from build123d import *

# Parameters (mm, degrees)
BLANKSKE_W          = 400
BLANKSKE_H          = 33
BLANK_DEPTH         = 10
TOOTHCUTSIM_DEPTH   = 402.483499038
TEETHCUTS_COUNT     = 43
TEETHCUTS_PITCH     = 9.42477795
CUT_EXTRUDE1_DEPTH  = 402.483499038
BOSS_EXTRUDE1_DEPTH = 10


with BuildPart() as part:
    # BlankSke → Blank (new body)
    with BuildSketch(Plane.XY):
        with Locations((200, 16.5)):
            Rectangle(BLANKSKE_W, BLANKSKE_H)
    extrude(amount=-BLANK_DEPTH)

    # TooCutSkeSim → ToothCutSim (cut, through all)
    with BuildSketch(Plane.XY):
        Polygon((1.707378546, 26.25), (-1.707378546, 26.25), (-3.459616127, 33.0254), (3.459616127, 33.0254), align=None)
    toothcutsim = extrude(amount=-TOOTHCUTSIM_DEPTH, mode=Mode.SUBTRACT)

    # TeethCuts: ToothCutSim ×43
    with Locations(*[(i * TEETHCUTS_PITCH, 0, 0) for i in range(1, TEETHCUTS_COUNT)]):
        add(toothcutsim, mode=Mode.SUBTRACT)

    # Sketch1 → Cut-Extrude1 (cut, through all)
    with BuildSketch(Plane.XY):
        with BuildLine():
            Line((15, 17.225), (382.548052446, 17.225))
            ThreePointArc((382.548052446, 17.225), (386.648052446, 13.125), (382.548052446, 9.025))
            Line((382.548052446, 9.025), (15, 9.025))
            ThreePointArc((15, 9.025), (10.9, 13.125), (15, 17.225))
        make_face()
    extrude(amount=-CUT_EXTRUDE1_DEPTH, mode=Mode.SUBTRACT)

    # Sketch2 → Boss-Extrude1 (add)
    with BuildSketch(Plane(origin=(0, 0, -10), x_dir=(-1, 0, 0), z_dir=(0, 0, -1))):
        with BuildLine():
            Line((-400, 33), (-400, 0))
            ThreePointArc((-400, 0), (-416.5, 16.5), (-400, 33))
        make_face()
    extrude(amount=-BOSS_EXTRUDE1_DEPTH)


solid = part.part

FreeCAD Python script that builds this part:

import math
import FreeCAD as App
import Part
import Sketcher
Q = App.Units.Quantity

doc = App.newDocument("Part")
body = doc.addObject("PartDesign::Body", "Body")

sketch1 = doc.addObject("Sketcher::SketchObject", "Sketch")
body.addObject(sketch1)
sketch1.AttachmentSupport = (doc.XY_Plane, [""])
sketch1.MapMode = "FlatFace"
sketch1.addGeometry(Part.LineSegment(App.Vector(0, 33, 0), App.Vector(0, 0, 0)), False)
sketch1.addGeometry(Part.LineSegment(App.Vector(0, 0, 0), App.Vector(400, 0, 0)), False)
sketch1.addGeometry(Part.LineSegment(App.Vector(400, 0, 0), App.Vector(400, 33, 0)), False)
sketch1.addGeometry(Part.LineSegment(App.Vector(400, 33, 0), App.Vector(0, 33, 0)), False)
sketch1.addConstraint(Sketcher.Constraint("Coincident", 0, 2, 1, 1))
sketch1.addConstraint(Sketcher.Constraint("Coincident", 1, 2, 2, 1))
sketch1.addConstraint(Sketcher.Constraint("Coincident", 2, 2, 3, 1))
sketch1.addConstraint(Sketcher.Constraint("Coincident", 3, 2, 0, 1))
sketch1.addConstraint(Sketcher.Constraint("Vertical", 0))
sketch1.addConstraint(Sketcher.Constraint("Horizontal", 1))
sketch1.addConstraint(Sketcher.Constraint("Vertical", 2))
sketch1.addConstraint(Sketcher.Constraint("Horizontal", 3))
sketch1.addConstraint(Sketcher.Constraint("Coincident", 0, 2, -1, 1))
sketch1.addConstraint(Sketcher.Constraint("DistanceX", 1, 1, 1, 2, Q("400 mm")))
sketch1.addConstraint(Sketcher.Constraint("DistanceY", 0, 2, 0, 1, Q("33 mm")))
pad1 = doc.addObject("PartDesign::Pad", "Pad")
body.addObject(pad1)
pad1.Profile = sketch1
pad1.Length = 10
pad1.Reversed = True

sketch2 = doc.addObject("Sketcher::SketchObject", "Sketch001")
body.addObject(sketch2)
sketch2.AttachmentSupport = (doc.XY_Plane, [""])
sketch2.MapMode = "FlatFace"
sketch2.addGeometry(Part.LineSegment(App.Vector(-1.707379, 26.25, 0), App.Vector(1.707379, 26.25, 0)), False)
sketch2.addGeometry(Part.LineSegment(App.Vector(1.707379, 26.25, 0), App.Vector(3.459616, 33.0254, 0)), False)
sketch2.addGeometry(Part.LineSegment(App.Vector(3.459616, 33.0254, 0), App.Vector(-3.459616, 33.0254, 0)), False)
sketch2.addGeometry(Part.LineSegment(App.Vector(-3.459616, 33.0254, 0), App.Vector(-1.707379, 26.25, 0)), False)
sketch2.addConstraint(Sketcher.Constraint("Coincident", 0, 2, 1, 1))
sketch2.addConstraint(Sketcher.Constraint("Coincident", 1, 2, 2, 1))
sketch2.addConstraint(Sketcher.Constraint("Coincident", 2, 2, 3, 1))
sketch2.addConstraint(Sketcher.Constraint("Coincident", 3, 2, 0, 1))
sketch2.addConstraint(Sketcher.Constraint("Horizontal", 0))
sketch2.addConstraint(Sketcher.Constraint("Horizontal", 2))
sketch2.addConstraint(Sketcher.Constraint("Equal", 1, 3))
sketch2.addConstraint(Sketcher.Constraint("Angle", 1, Q("75.5 deg")))
sketch2.addConstraint(Sketcher.Constraint("DistanceY", -1, 1, 0, 2, Q("26.25 mm")))
sketch2.addConstraint(Sketcher.Constraint("DistanceY", -1, 1, 1, 2, Q("33.0254 mm")))
sketch2.addConstraint(Sketcher.Constraint("DistanceX", 0, 1, 0, 2, Q("3.414757 mm")))
sketch2.addConstraint(Sketcher.Constraint("DistanceX", -1, 1, 0, 2, Q("1.707379 mm")))
pocket1 = doc.addObject("PartDesign::Pocket", "Pocket")
body.addObject(pocket1)
pocket1.Profile = sketch2
pocket1.Type = "ThroughAll"
doc.recompute()

linearpattern = doc.addObject("PartDesign::LinearPattern", "LinearPattern")
body.addObject(linearpattern)
linearpattern.Originals = [pocket1]
linearpattern.Direction = (doc.X_Axis, [""])
linearpattern.Mode = "offset"
linearpattern.Offset = 9.424778
linearpattern.Occurrences = 43
body.Tip = linearpattern

sketch3 = doc.addObject("Sketcher::SketchObject", "Sketch002")
body.addObject(sketch3)
sketch3.AttachmentSupport = (doc.XY_Plane, [""])
sketch3.MapMode = "FlatFace"
sketch3.addGeometry(Part.LineSegment(App.Vector(382.548052, 17.225, 0), App.Vector(15, 17.225, 0)), False)
sketch3.addGeometry(Part.ArcOfCircle(Part.Circle(App.Vector(15, 13.125, 0), App.Vector(0, 0, 1), 4.1), math.radians(90), math.radians(270)), False)
sketch3.addGeometry(Part.LineSegment(App.Vector(15, 9.025, 0), App.Vector(382.548052, 9.025, 0)), False)
sketch3.addGeometry(Part.ArcOfCircle(Part.Circle(App.Vector(382.548052, 13.125, 0), App.Vector(0, 0, 1), 4.1), math.radians(-90), math.radians(90)), False)
sketch3.addConstraint(Sketcher.Constraint("Tangent", 0, 2, 1, 1))
sketch3.addConstraint(Sketcher.Constraint("Tangent", 1, 2, 2, 1))
sketch3.addConstraint(Sketcher.Constraint("Tangent", 2, 2, 3, 1))
sketch3.addConstraint(Sketcher.Constraint("Tangent", 3, 2, 0, 1))
sketch3.addConstraint(Sketcher.Constraint("Horizontal", 0))
sketch3.addConstraint(Sketcher.Constraint("Horizontal", 2))
sketch3.addConstraint(Sketcher.Constraint("Radius", 1, Q("4.1 mm")))
sketch3.addConstraint(Sketcher.Constraint("DistanceX", -1, 1, 1, 3, Q("15 mm")))
sketch3.addConstraint(Sketcher.Constraint("DistanceY", -1, 1, 1, 3, Q("13.125 mm")))
sketch3.addConstraint(Sketcher.Constraint("DistanceX", 0, 2, 0, 1, Q("367.548052 mm")))
pocket2 = doc.addObject("PartDesign::Pocket", "Pocket001")
body.addObject(pocket2)
pocket2.Profile = sketch3
pocket2.Type = "ThroughAll"

sketch4 = doc.addObject("Sketcher::SketchObject", "Sketch003")
body.addObject(sketch4)
sketch4.AttachmentSupport = (doc.XY_Plane, [""])
sketch4.MapMode = "FlatFace"
sketch4.AttachmentOffset = App.Placement(App.Vector(0, 0, -10), App.Rotation())
sketch4.addGeometry(Part.LineSegment(App.Vector(400, 0, 0), App.Vector(400, 33, 0)), False)
sketch4.addGeometry(Part.ArcOfCircle(Part.Circle(App.Vector(400, 16.5, 0), App.Vector(0, 0, 1), 16.5), math.radians(-90), math.radians(90)), False)
sketch4.addConstraint(Sketcher.Constraint("Coincident", 0, 1, 1, 1))
sketch4.addConstraint(Sketcher.Constraint("Coincident", 1, 2, 0, 2))
sketch4.addConstraint(Sketcher.Constraint("Vertical", 0))
sketch4.addConstraint(Sketcher.Constraint("PointOnObject", 0, 1, -1))
sketch4.addConstraint(Sketcher.Constraint("Vertical", 1, 3, 0, 1))
sketch4.addConstraint(Sketcher.Constraint("Radius", 1, Q("16.5 mm")))
sketch4.addConstraint(Sketcher.Constraint("DistanceX", -1, 1, 1, 3, Q("400 mm")))
pad2 = doc.addObject("PartDesign::Pad", "Pad001")
body.addObject(pad2)
pad2.Profile = sketch4
pad2.Length = 10

doc.recompute()
